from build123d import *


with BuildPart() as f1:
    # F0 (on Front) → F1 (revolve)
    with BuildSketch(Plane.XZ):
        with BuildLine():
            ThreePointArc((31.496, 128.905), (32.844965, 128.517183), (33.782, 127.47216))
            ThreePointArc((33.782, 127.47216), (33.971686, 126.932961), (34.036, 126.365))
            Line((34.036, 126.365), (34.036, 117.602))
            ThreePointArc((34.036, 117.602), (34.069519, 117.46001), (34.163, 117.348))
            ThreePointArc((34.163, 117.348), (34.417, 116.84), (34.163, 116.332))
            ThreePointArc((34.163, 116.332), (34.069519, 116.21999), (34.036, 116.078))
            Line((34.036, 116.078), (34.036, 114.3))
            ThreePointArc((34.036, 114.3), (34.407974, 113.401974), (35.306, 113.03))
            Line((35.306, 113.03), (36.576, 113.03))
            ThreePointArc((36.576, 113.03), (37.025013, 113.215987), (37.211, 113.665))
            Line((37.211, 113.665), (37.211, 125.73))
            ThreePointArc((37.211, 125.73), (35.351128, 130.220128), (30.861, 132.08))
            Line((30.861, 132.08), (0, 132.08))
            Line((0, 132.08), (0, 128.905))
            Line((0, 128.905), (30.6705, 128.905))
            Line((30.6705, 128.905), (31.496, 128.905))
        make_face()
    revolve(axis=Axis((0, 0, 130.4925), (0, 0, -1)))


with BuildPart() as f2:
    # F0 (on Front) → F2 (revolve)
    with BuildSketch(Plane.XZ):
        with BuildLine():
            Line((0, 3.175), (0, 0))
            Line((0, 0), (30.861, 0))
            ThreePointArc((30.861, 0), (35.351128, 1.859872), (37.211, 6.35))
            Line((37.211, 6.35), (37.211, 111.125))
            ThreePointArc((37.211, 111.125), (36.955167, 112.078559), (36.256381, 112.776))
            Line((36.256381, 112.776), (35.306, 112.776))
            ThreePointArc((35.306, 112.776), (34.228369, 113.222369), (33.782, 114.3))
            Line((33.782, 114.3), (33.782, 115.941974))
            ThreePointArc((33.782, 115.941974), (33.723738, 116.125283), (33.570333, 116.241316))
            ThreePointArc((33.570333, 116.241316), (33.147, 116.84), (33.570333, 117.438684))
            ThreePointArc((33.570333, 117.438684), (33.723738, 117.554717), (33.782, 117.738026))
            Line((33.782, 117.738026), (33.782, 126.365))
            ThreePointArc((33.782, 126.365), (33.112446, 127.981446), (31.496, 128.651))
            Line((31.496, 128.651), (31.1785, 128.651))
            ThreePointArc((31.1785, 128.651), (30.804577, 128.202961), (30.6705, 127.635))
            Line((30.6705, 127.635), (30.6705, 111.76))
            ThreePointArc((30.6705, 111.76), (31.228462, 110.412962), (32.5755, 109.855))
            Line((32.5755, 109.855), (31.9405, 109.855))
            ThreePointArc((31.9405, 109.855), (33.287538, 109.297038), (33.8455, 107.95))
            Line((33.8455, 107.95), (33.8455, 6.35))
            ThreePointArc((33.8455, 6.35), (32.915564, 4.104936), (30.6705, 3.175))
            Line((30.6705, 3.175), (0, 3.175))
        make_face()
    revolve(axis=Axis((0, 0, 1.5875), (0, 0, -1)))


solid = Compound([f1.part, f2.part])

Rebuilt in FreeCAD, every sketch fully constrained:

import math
import FreeCAD as App
import Part
import Sketcher

V = App.Vector
Q = App.Units.Quantity

doc = App.newDocument("Part")
body = doc.addObject("PartDesign::Body", "Body")

sketch1 = body.newObject("Sketcher::SketchObject", "Sketch")
sketch1.AttachmentSupport = (doc.getObject("XZ_Plane"), [""])
sketch1.MapMode = "FlatFace"
sketch1.addGeometry([
    Part.ArcOfCircle(Part.Circle(V(31.495999, 126.364999, 0), V(0, 0, 1), 2.540001), math.radians(25.841945), math.radians(89.999976)),
    Part.ArcOfCircle(Part.Circle(V(31.496009, 126.365002, 0), V(0, 0, 1), 2.539991), math.radians(-0.000041), math.radians(25.841982)),
    Part.LineSegment(V(34.036, 126.365, 0), V(34.036, 117.602, 0)),
    Part.ArcOfCircle(Part.Circle(V(34.353498, 117.601999, 0), V(0, 0, 1), 0.317498), math.radians(179.999857), math.radians(233.130245)),
    Part.ArcOfCircle(Part.Circle(V(33.782, 116.84, 0), V(0, 0, 1), 0.635), math.radians(-53.130102), math.radians(53.130102)),
    Part.ArcOfCircle(Part.Circle(V(34.353498, 116.078001, 0), V(0, 0, 1), 0.317498), math.radians(126.869755), math.radians(180.000143)),
    Part.LineSegment(V(34.036, 116.078, 0), V(34.036, 114.3, 0)),
    Part.ArcOfCircle(Part.Circle(V(35.305999, 114.299999, 0), V(0, 0, 1), 1.269999), math.radians(179.99994), math.radians(270.00006)),
    Part.LineSegment(V(35.306, 113.03, 0), V(36.576, 113.03, 0)),
    Part.ArcOfCircle(Part.Circle(V(36.576001, 113.664999, 0), V(0, 0, 1), 0.634999), math.radians(-90.00006), math.radians(0.00006)),
    Part.LineSegment(V(37.211, 113.665, 0), V(37.211, 125.73, 0)),
    Part.ArcOfCircle(Part.Circle(V(30.861, 125.73, 0), V(0, 0, 1), 6.35), math.radians(0.000002), math.radians(89.999998)),
    Part.LineSegment(V(30.861, 132.08, 0), V(0, 132.08, 0)),
    Part.LineSegment(V(0, 132.08, 0), V(0, 128.905, 0)),
    Part.LineSegment(V(0, 128.905, 0), V(31.496, 128.905, 0)),
], False)
sketch1.addConstraint([
    Sketcher.Constraint("Tangent", 0, 1, 1, 2),
    Sketcher.Constraint("Tangent", 1, 1, 2, 1),
    Sketcher.Constraint("Coincident", 2, 2, 3, 1),
    Sketcher.Constraint("Coincident", 3, 2, 4, 2),
    Sketcher.Constraint("Coincident", 4, 1, 5, 1),
    Sketcher.Constraint("Coincident", 5, 2, 6, 1),
    Sketcher.Constraint("Tangent", 6, 2, 7, 1),
    Sketcher.Constraint("Tangent", 7, 2, 8, 1),
    Sketcher.Constraint("Tangent", 8, 2, 9, 1),
    Sketcher.Constraint("Tangent", 9, 2, 10, 1),
    Sketcher.Constraint("Tangent", 10, 2, 11, 1),
    Sketcher.Constraint("Tangent", 11, 2, 12, 1),
    Sketcher.Constraint("Coincident", 12, 2, 13, 1),
    Sketcher.Constraint("Coincident", 13, 2, 14, 1),
    Sketcher.Constraint("Tangent", 14, 2, 0, 2),
    Sketcher.Constraint("Vertical", 2),
    Sketcher.Constraint("Vertical", 6),
    Sketcher.Constraint("Horizontal", 8),
    Sketcher.Constraint("Vertical", 10),
    Sketcher.Constraint("Horizontal", 12),
    Sketcher.Constraint("Vertical", 13),
    Sketcher.Constraint("Horizontal", 14),
    Sketcher.Constraint("Equal", 3, 5),
    Sketcher.Constraint("Equal", 4, 9),
    Sketcher.Constraint("PointOnObject", 12, 2, -2),
    Sketcher.Constraint("Horizontal", 0, 3, 1, 1),
    Sketcher.Constraint("Horizontal", 3, 3, 2, 2),
    Sketcher.Constraint("Vertical", 3, 3, 5, 3),
    Sketcher.Constraint("Vertical", 4, 3, 0, 1),
    Sketcher.Constraint("Vertical", 3, 2, 4, 1),
    Sketcher.Constraint("Radius", 0, Q("0.1000001 in")),
    Sketcher.Constraint("Radius", 7, Q("0.0499999 in")),
    Sketcher.Constraint("Radius", 11, Q("0.25 in")),
    Sketcher.Constraint("Radius", 4, Q("0.025 in")),
    Sketcher.Constraint("DistanceX", 8, 1, 8, 2, Q("0.05 in")),
    Sketcher.Constraint("DistanceX", 14, 1, 14, 2, Q("1.24 in")),
    Sketcher.Constraint("DistanceY", 6, 2, 6, 1, Q("0.07 in")),
    Sketcher.Constraint("DistanceY", -1, 1, 4, 3, Q("4.6 in")),
    Sketcher.Constraint("DistanceY", -1, 1, 7, 3, Q("4.4999999 in")),
    Sketcher.Constraint("DistanceY", -1, 1, 11, 2, Q("5.2 in")),
    Sketcher.Constraint("Radius", 3, Q("0.0124999 in")),
    Sketcher.Constraint("DistanceY", 9, 3, 1, 3, Q("0.5000001 in")),
    Sketcher.Constraint("DistanceY", 2, 2, 2, 1, Q("0.345 in")),
    Sketcher.Constraint("DistanceY", -1, 1, 3, 2, Q("4.62 in")),
])
revolution = body.newObject("PartDesign::Revolution", "Revolution")
revolution.Profile = sketch1
revolution.ReferenceAxis = (sketch1, ["V_Axis"])
revolution.Angle = 360
body2 = doc.addObject("PartDesign::Body", "Body001")

sketch2 = body2.newObject("Sketcher::SketchObject", "Sketch001")
sketch2.AttachmentSupport = (doc.getObject("XZ_Plane001"), [""])
sketch2.MapMode = "FlatFace"
sketch2.addGeometry([
    Part.LineSegment(V(0, 3.175, 0), V(0, 0, 0)),
    Part.LineSegment(V(0, 0, 0), V(30.861, 0, 0)),
    Part.ArcOfCircle(Part.Circle(V(30.861, 6.35, 0), V(0, 0, 1), 6.35), math.radians(-89.999998), math.radians(-0.000002)),
    Part.LineSegment(V(37.211, 6.35, 0), V(37.211, 111.125, 0)),
    Part.ArcOfCircle(Part.Circle(V(35.306003, 111.125002, 0), V(0, 0, 1), 1.904997), math.radians(-0.000046), math.radians(60.073609)),
    Part.LineSegment(V(36.256381, 112.776, 0), V(35.306, 112.776, 0)),
    Part.ArcOfCircle(Part.Circle(V(35.305999, 114.299999, 0), V(0, 0, 1), 1.523999), math.radians(179.999966), math.radians(270.000034)),
    Part.LineSegment(V(33.782, 114.3, 0), V(33.782, 115.941974, 0)),
    Part.ArcOfCircle(Part.Circle(V(33.464502, 115.941975, 0), V(0, 0, 1), 0.317498), math.radians(-0.000249), math.radians(70.52909)),
    Part.ArcOfCircle(Part.Circle(V(33.782001, 116.84, 0), V(0, 0, 1), 0.635001), math.radians(109.471286), math.radians(250.528714)),
    Part.ArcOfCircle(Part.Circle(V(33.464502, 117.738025, 0), V(0, 0, 1), 0.317498), math.radians(-70.52909), math.radians(0.000249)),
    Part.LineSegment(V(33.782, 117.738026, 0), V(33.782, 126.365, 0)),
    Part.ArcOfCircle(Part.Circle(V(31.496, 126.365, 0), V(0, 0, 1), 2.286), math.radians(0.000009), math.radians(89.999991)),
    Part.LineSegment(V(31.496, 128.651, 0), V(31.1785, 128.651, 0)),
    Part.ArcOfCircle(Part.Circle(V(31.940497, 127.635001, 0), V(0, 0, 1), 1.269997), math.radians(126.869841), math.radians(180.000057)),
    Part.LineSegment(V(30.6705, 127.635, 0), V(30.6705, 111.76, 0)),
    Part.ArcOfCircle(Part.Circle(V(32.575501, 111.760001, 0), V(0, 0, 1), 1.905001), math.radians(-179.999957), math.radians(-90.000043)),
    Part.LineSegment(V(32.5755, 109.855, 0), V(31.9405, 109.855, 0)),
    Part.ArcOfCircle(Part.Circle(V(31.940499, 107.949999, 0), V(0, 0, 1), 1.905001), math.radians(0.000043), math.radians(89.999957)),
    Part.LineSegment(V(33.8455, 107.95, 0), V(33.8455, 6.35, 0)),
    Part.ArcOfCircle(Part.Circle(V(30.6705, 6.35, 0), V(0, 0, 1), 3.175), math.radians(-89.999998), math.radians(-0.000002)),
    Part.LineSegment(V(30.6705, 3.175, 0), V(0, 3.175, 0)),
], False)
sketch2.addConstraint([
    Sketcher.Constraint("Coincident", 0, 2, 1, 1),
    Sketcher.Constraint("Tangent", 1, 2, 2, 1),
    Sketcher.Constraint("Tangent", 2, 2, 3, 1),
    Sketcher.Constraint("Tangent", 3, 2, 4, 1),
    Sketcher.Constraint("Coincident", 4, 2, 5, 1),
    Sketcher.Constraint("Tangent", 5, 2, 6, 2),
    Sketcher.Constraint("Tangent", 6, 1, 7, 1),
    Sketcher.Constraint("Coincident", 7, 2, 8, 1),
    Sketcher.Constraint("Coincident", 8, 2, 9, 2),
    Sketcher.Constraint("Coincident", 9, 1, 10, 1),
    Sketcher.Constraint("Coincident", 10, 2, 11, 1),
    Sketcher.Constraint("Tangent", 11, 2, 12, 1),
    Sketcher.Constraint("Tangent", 12, 2, 13, 1),
    Sketcher.Constraint("Coincident", 13, 2, 14, 1),
    Sketcher.Constraint("Tangent", 14, 2, 15, 1),
    Sketcher.Constraint("Tangent", 15, 2, 16, 1),
    Sketcher.Constraint("Tangent", 16, 2, 17, 1),
    Sketcher.Constraint("Tangent", 17, 2, 18, 2),
    Sketcher.Constraint("Tangent", 18, 1, 19, 1),
    Sketcher.Constraint("Tangent", 19, 2, 20, 2),
    Sketcher.Constraint("Tangent", 20, 1, 21, 1),
    Sketcher.Constraint("Coincident", 21, 2, 0, 1),
    Sketcher.Constraint("Vertical", 0),
    Sketcher.Constraint("Horizontal", 1),
    Sketcher.Constraint("Vertical", 3),
    Sketcher.Constraint("Horizontal", 5),
    Sketcher.Constraint("Vertical", 7),
    Sketcher.Constraint("Vertical", 11),
    Sketcher.Constraint("Horizontal", 13),
    Sketcher.Constraint("Vertical", 15),
    Sketcher.Constraint("Horizontal", 17),
    Sketcher.Constraint("Vertical", 19),
    Sketcher.Constraint("Horizontal", 21),
    Sketcher.Constraint("Coincident", 0, 2, -1, 1),
    Sketcher.Constraint("Equal", 8, 10),
    Sketcher.Constraint("Equal", 16, 18),
    Sketcher.Constraint("Horizontal", 2, 3, 20, 3),
    Sketcher.Constraint("Horizontal", 8, 3, 7, 2),
    Sketcher.Constraint("Vertical", 8, 3, 10, 3),
    Sketcher.Constraint("Vertical", 14, 3, 18, 3),
    Sketcher.Constraint("Vertical", 9, 3, 6, 1),
    Sketcher.Constraint("Vertical", 8, 2, 9, 1),
    Sketcher.Constraint("Vertical", 20, 3, 14, 2),
    Sketcher.Constraint("DistanceY", 19, 2, 19, 1, Q("4 in")),
    Sketcher.Constraint("Radius", 2, Q("0.25 in")),
    Sketcher.Constraint("Radius", 6, Q("0.06 in")),
    Sketcher.Constraint("Radius", 12, Q("0.09 in")),
    Sketcher.Constraint("Radius", 14, Q("0.0499999 in")),
    Sketcher.Constraint("Radius", 4, Q("0.0749999 in")),
    Sketcher.Constraint("Radius", 9, Q("0.025 in")),
    Sketcher.Constraint("Radius", 16, Q("0.0750001 in")),
    Sketcher.Constraint("DistanceY", -1, 1, 6, 3, Q("4.5 in")),
    Sketcher.Constraint("DistanceY", -1, 1, 9, 3, Q("4.6 in")),
    Sketcher.Constraint("Radius", 8, Q("0.0124999 in")),
    Sketcher.Constraint("DistanceY", 4, 3, 12, 3, Q("0.5999999 in")),
    Sketcher.Constraint("DistanceX", 1, 1, 1, 2, Q("1.215 in")),
    Sketcher.Constraint("DistanceY", 3, 1, 3, 2, Q("4.125 in")),
    Sketcher.Constraint("DistanceY", 15, 2, 15, 1, Q("0.625 in")),
    Sketcher.Constraint("DistanceX", -1, 1, 6, 3, Q("1.39 in")),
    Sketcher.Constraint("DistanceX", 14, 3, 10, 3, Q("0.0600002 in")),
    Sketcher.Constraint("DistanceY", 11, 1, 11, 2, 8.626974),
    Sketcher.Constraint("DistanceX", 8, 3, 8, 2, 0.105831),
])
revolution2 = body2.newObject("PartDesign::Revolution", "Revolution001")
revolution2.Profile = sketch2
revolution2.ReferenceAxis = (sketch2, ["V_Axis"])
revolution2.Angle = 360

doc.recompute()
